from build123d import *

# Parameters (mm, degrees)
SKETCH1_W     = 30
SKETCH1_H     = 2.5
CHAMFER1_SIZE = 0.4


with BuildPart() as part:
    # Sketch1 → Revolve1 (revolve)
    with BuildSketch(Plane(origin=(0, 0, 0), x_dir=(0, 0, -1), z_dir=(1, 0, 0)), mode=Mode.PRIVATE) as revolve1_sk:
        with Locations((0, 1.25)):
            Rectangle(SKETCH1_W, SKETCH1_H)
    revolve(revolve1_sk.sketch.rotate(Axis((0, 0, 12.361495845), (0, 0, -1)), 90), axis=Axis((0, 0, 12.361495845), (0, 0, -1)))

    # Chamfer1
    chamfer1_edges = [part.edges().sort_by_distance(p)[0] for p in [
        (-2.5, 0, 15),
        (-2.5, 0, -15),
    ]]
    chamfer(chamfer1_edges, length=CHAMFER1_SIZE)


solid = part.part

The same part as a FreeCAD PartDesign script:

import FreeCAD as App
import Part
import Sketcher
from FreeCAD import Vector


def edges_at(feature, points):
    """Names of the edges that pass closest to the given points."""
    edges = feature.Shape.Edges
    near = lambda p: min(range(len(edges)), key=lambda i: edges[i].distToShape(Part.Vertex(*p))[0])
    return sorted({f"Edge{near(p) + 1}" for p in points})

doc = App.newDocument("Part")
body = doc.addObject("PartDesign::Body", "Body")

# Sketch on YZ plane
sketch1 = body.newObject("Sketcher::SketchObject", "Sketch")
sketch1.AttachmentSupport = (doc.getObject("YZ_Plane"), [""])
sketch1.MapMode = "FlatFace"
sketch1.addGeometry([
    Part.LineSegment(Vector(2.5, 15, 0), Vector(0, 15, 0)),
    Part.LineSegment(Vector(0, 15, 0), Vector(0, -15, 0)),
    Part.LineSegment(Vector(0, -15, 0), Vector(2.5, -15, 0)),
    Part.LineSegment(Vector(2.5, -15, 0), Vector(2.5, 15, 0)),
], False)
sketch1.addConstraint([
    Sketcher.Constraint("Coincident", 0, 2, 1, 1),
    Sketcher.Constraint("Coincident", 1, 2, 2, 1),
    Sketcher.Constraint("Coincident", 2, 2, 3, 1),
    Sketcher.Constraint("Coincident", 3, 2, 0, 1),
    Sketcher.Constraint("Horizontal", 0),
    Sketcher.Constraint("Vertical", 1),
    Sketcher.Constraint("Horizontal", 2),
    Sketcher.Constraint("Vertical", 3),
    Sketcher.Constraint("Symmetric", 0, 2, 1, 2, -1, 1),
    Sketcher.Constraint("DistanceY", 1, 2, 1, 1, 30.0),
    Sketcher.Constraint("DistanceX", 0, 2, 0, 1, 2.5),
])
revolution = body.newObject("PartDesign::Revolution", "Revolution")
revolution.Profile = sketch1
revolution.ReferenceAxis = (sketch1, ["V_Axis"])
revolution.Angle = 360
doc.recompute()

chamfer = body.newObject("PartDesign::Chamfer", "Chamfer")
chamfer.Base = (revolution, edges_at(revolution, [(-2.5, 0, 15), (-2.5, 0, -15)]))
chamfer.Size = 0.4

doc.recompute()
